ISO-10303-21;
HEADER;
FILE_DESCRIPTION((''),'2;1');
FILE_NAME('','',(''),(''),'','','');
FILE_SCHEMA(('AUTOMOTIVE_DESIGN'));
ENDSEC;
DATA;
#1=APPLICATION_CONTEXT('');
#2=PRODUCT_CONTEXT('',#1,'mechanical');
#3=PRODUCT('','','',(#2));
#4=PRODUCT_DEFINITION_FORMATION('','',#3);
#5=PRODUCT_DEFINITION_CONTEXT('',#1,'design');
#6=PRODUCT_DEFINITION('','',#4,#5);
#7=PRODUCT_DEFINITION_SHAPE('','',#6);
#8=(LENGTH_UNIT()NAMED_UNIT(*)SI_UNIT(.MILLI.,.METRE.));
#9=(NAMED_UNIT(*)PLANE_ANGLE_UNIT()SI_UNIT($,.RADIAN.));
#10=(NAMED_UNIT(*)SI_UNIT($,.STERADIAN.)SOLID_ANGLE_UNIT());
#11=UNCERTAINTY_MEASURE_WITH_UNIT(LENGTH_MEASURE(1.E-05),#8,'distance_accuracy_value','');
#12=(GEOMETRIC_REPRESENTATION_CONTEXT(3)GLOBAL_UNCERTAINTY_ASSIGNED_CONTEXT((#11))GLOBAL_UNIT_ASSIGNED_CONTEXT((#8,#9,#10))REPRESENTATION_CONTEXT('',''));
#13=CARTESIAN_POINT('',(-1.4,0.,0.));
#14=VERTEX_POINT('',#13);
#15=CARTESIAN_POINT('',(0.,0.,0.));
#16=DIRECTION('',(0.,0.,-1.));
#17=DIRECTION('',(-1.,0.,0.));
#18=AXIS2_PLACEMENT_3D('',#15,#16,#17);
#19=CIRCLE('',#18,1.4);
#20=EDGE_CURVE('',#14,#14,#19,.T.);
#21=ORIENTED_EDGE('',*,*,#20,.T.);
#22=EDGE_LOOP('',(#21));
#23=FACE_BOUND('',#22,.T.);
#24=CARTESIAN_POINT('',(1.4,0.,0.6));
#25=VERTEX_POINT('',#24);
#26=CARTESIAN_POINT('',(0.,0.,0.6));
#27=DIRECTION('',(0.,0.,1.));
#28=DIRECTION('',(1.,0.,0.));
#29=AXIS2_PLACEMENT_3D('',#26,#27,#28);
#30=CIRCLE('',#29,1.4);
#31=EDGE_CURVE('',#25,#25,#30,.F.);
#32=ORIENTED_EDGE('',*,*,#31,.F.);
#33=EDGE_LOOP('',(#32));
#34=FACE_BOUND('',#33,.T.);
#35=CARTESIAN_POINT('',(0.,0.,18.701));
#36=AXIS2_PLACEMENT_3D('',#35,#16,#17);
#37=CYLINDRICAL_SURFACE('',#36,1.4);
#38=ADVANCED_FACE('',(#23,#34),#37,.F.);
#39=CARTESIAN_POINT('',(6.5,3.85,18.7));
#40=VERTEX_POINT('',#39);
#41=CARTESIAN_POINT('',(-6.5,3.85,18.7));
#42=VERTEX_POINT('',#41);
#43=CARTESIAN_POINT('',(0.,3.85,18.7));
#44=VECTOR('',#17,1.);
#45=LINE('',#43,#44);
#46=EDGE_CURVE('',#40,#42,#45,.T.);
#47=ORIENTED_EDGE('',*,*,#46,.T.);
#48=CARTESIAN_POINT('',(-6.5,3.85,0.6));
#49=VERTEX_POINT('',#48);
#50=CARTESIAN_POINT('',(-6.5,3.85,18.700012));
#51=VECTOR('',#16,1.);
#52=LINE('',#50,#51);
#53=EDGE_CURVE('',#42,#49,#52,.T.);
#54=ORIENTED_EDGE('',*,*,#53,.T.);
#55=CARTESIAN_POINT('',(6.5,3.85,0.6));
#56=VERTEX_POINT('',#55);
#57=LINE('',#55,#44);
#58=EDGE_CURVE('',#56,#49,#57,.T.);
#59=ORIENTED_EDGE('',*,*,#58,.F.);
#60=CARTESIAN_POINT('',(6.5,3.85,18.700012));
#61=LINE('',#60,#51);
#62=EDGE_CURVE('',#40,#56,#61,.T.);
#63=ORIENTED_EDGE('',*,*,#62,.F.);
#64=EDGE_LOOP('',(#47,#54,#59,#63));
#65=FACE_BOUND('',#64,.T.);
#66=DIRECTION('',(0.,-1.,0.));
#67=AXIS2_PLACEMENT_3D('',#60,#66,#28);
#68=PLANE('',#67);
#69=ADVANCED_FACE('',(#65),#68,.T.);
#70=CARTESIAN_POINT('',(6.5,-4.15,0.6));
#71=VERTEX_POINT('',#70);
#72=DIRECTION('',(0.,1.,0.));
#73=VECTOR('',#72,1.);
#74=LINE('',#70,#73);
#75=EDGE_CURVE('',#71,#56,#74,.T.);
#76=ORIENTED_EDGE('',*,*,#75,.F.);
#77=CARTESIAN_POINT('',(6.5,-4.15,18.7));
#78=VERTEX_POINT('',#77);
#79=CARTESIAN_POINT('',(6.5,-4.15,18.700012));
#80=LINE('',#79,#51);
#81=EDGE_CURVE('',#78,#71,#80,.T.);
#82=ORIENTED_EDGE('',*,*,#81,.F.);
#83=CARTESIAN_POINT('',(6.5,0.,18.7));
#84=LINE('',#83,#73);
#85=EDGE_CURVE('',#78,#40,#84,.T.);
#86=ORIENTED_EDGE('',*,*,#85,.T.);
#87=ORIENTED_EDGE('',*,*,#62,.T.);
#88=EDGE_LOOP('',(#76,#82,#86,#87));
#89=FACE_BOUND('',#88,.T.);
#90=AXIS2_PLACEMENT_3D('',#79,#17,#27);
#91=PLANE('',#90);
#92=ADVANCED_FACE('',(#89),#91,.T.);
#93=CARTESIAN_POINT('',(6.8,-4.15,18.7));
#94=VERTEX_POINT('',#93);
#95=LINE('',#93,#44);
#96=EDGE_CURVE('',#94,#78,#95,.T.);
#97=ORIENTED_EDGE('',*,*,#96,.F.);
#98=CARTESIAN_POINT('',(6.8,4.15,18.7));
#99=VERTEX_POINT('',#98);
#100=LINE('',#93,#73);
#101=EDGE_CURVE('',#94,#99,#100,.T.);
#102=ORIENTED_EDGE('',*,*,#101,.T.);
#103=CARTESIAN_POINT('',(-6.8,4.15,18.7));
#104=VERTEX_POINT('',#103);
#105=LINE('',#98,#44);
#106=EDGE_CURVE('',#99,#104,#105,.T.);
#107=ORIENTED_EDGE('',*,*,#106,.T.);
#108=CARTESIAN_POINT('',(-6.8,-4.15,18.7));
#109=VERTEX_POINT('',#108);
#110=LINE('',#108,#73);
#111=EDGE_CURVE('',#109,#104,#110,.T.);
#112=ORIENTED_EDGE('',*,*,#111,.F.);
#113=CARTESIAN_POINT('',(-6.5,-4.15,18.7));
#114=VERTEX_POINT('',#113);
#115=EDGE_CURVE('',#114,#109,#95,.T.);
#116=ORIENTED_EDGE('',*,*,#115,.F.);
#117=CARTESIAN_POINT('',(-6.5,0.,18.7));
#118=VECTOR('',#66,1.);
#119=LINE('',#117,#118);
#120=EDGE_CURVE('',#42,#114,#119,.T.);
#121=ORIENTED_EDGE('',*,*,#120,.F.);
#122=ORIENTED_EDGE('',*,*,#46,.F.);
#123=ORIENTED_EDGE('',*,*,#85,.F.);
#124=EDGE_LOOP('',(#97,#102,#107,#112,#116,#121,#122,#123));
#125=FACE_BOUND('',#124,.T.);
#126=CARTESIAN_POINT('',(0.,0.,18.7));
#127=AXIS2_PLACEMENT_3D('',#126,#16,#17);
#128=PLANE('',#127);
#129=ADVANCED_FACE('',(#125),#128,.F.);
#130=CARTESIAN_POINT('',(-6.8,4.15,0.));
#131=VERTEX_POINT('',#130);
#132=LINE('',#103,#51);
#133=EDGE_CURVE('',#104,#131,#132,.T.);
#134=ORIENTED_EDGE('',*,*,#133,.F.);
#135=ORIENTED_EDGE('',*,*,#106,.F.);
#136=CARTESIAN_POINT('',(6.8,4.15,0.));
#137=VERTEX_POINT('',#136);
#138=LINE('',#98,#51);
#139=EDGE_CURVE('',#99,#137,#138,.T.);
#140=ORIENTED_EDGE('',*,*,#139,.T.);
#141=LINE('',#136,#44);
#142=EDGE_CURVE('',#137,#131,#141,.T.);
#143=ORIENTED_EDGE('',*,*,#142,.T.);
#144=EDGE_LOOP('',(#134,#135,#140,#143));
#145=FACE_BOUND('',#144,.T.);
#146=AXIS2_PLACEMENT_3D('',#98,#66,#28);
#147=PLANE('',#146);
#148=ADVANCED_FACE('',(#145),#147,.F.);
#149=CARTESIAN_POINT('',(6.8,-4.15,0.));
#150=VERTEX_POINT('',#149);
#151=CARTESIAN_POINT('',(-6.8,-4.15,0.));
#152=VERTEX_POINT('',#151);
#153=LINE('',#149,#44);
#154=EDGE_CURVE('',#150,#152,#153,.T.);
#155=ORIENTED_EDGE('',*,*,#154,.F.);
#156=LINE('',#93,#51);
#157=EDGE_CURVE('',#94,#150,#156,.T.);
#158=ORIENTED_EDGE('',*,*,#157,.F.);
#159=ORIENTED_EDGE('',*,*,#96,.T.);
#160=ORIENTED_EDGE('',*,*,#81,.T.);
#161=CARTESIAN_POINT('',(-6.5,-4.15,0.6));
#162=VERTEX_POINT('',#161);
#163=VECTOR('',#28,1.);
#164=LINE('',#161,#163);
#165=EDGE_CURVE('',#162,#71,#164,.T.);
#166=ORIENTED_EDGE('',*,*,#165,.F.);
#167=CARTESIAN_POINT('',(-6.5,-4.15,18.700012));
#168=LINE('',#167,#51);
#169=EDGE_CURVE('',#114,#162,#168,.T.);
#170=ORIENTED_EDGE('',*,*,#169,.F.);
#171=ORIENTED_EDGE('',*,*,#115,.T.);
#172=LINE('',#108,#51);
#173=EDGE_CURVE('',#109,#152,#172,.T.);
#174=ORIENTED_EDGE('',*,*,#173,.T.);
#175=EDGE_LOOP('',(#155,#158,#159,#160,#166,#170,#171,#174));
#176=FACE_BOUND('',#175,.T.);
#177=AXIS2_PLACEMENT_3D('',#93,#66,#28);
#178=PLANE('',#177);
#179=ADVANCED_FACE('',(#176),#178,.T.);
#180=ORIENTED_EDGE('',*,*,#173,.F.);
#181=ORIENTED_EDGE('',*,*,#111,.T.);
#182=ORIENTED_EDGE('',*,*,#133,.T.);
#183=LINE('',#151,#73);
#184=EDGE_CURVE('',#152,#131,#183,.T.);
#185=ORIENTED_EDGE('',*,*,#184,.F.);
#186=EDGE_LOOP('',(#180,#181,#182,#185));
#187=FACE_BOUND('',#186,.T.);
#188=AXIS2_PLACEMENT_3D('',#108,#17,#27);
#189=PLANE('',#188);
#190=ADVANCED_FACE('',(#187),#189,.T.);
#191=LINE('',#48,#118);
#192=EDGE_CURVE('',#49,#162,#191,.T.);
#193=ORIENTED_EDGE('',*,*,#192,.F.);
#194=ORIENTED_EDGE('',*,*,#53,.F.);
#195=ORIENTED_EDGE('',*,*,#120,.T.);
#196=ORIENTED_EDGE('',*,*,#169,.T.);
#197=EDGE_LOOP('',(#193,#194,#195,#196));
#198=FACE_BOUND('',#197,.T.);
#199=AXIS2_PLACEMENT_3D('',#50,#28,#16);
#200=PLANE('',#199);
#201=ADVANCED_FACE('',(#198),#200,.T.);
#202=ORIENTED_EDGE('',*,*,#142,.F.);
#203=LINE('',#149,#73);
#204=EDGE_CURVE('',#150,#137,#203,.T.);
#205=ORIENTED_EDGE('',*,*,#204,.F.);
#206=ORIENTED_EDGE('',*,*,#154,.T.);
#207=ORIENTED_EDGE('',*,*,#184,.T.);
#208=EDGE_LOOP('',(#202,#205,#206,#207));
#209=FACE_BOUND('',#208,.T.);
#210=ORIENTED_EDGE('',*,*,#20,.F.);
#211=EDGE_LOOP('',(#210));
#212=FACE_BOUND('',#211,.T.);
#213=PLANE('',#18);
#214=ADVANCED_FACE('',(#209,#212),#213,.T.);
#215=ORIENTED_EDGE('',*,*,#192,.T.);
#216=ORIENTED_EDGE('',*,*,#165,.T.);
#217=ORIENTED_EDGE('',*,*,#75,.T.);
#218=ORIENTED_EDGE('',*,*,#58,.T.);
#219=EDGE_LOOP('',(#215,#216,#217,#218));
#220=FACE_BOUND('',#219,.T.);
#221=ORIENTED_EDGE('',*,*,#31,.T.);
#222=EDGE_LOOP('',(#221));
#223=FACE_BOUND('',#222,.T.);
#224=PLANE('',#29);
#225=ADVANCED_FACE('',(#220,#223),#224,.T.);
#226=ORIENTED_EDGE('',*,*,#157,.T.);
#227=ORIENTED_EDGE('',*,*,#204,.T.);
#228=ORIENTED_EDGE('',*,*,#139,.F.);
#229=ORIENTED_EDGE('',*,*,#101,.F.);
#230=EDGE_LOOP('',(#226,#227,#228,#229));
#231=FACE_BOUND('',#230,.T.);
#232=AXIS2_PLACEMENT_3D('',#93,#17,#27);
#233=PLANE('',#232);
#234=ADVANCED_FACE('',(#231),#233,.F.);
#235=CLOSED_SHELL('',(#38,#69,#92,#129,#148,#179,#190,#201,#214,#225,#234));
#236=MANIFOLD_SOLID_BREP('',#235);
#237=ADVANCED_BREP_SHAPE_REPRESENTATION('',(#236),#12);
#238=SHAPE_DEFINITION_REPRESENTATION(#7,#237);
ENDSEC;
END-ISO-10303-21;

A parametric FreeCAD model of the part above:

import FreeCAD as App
import Part
import Sketcher
from FreeCAD import Vector


def add_polygon(sketch, points):
    """Adds a closed chain of lines whose ends are joined by coincident constraints."""
    first, n = sketch.GeometryCount, len(points)
    for a, b in zip(points, points[1:] + points[:1]):
        sketch.addGeometry(Part.LineSegment(App.Vector(*a, 0), App.Vector(*b, 0)), False)
    for i in range(n):
        sketch.addConstraint(Sketcher.Constraint("Coincident", first + i, 2, first + (i + 1) % n, 1))

doc = App.newDocument("Part")
params = doc.addObject("Spreadsheet::Sheet", "Params")
for row, (alias, value) in enumerate([
    ("sketch1_width", "13.6 mm"),
    ("sketch1_height", "8.3 mm"),
    ("pad1_length", "18.7 mm"),
    ("sketch2_width", "13 mm"),
    ("sketch2_height", "8 mm"),
    ("pocket1_length", "21.326153 mm"),
    ("pocket1_length2", "18.1 mm"),
    ("sketch3_diameter", "2.8 mm"),
], start=1):
    params.set(f"A{row}", alias)
    params.set(f"B{row}", "=" + value)
    params.setAlias(f"B{row}", alias)

body = doc.addObject("PartDesign::Body", "Body")

# Sketch on XY plane
sketch1 = body.newObject("Sketcher::SketchObject", "Sketch")
sketch1.AttachmentSupport = (doc.getObject("XY_Plane"), [""])
sketch1.MapMode = "FlatFace"
add_polygon(sketch1, [(-7, 4), (-7, -4), (7, -4), (7, 4)])  # lines 0-3
sketch1.addConstraint([
    Sketcher.Constraint("Vertical", 0),
    Sketcher.Constraint("Horizontal", 1),
    Sketcher.Constraint("Vertical", 2),
    Sketcher.Constraint("Horizontal", 3),
    Sketcher.Constraint("Symmetric", 0, 2, 2, 2, -1, 1),
    Sketcher.Constraint("DistanceX", 1, 1, 1, 2, 13.6),
    Sketcher.Constraint("DistanceY", 0, 2, 0, 1, 8.3),
])
sketch1.setExpression("Constraints[9]", "Params.sketch1_width")
sketch1.setExpression("Constraints[10]", "Params.sketch1_height")
pad1 = body.newObject("PartDesign::Pad", "Pad")
pad1.Profile = sketch1
pad1.setExpression("Length", "Params.pad1_length")

# Sketch on XY plane
sketch2 = body.newObject("Sketcher::SketchObject", "Sketch001")
sketch2.AttachmentSupport = (doc.getObject("XY_Plane"), [""])
sketch2.MapMode = "FlatFace"
sketch2.AttachmentOffset = App.Placement(Vector(0, 0, 18.7), App.Rotation())
add_polygon(sketch2, [(-6, 4), (-6, -4), (6, -4), (6, 4)])  # lines 0-3
sketch2.addConstraint([
    Sketcher.Constraint("Vertical", 0),
    Sketcher.Constraint("Horizontal", 1),
    Sketcher.Constraint("Vertical", 2),
    Sketcher.Constraint("Horizontal", 3),
    Sketcher.Constraint("DistanceX", 1, 1, 1, 2, 13.0),
    Sketcher.Constraint("DistanceY", 0, 2, 0, 1, 8.0),
    Sketcher.Constraint("DistanceX", 0, 2, -1, 1, 6.5),
    Sketcher.Constraint("DistanceY", 0, 2, -1, 1, 4.15),
])
sketch2.setExpression("Constraints[8]", "Params.sketch2_width")
sketch2.setExpression("Constraints[9]", "Params.sketch2_height")
pocket1 = body.newObject("PartDesign::Pocket", "Pocket")
pocket1.Profile = sketch2
pocket1.Type = "TwoLengths"
pocket1.setExpression("Length", "Params.pocket1_length")
pocket1.setExpression("Length2", "Params.pocket1_length2")
pocket1.Reversed = True

# Sketch on XY plane
sketch3 = body.newObject("Sketcher::SketchObject", "Sketch002")
sketch3.AttachmentSupport = (doc.getObject("XY_Plane"), [""])
sketch3.MapMode = "FlatFace"
sketch3.addGeometry(Part.Circle(Vector(0, 0, 0), Vector(0, 0, 1), 1.4), False)
sketch3.addConstraint([
    Sketcher.Constraint("Coincident", 0, 3, -1, 1),
    Sketcher.Constraint("Diameter", 0, 2.8),
])
sketch3.setExpression("Constraints[1]", "Params.sketch3_diameter")
pocket2 = body.newObject("PartDesign::Pocket", "Pocket001")
pocket2.Profile = sketch3
pocket2.Type = "UpToFirst"
pocket2.Reversed = True

doc.recompute()
